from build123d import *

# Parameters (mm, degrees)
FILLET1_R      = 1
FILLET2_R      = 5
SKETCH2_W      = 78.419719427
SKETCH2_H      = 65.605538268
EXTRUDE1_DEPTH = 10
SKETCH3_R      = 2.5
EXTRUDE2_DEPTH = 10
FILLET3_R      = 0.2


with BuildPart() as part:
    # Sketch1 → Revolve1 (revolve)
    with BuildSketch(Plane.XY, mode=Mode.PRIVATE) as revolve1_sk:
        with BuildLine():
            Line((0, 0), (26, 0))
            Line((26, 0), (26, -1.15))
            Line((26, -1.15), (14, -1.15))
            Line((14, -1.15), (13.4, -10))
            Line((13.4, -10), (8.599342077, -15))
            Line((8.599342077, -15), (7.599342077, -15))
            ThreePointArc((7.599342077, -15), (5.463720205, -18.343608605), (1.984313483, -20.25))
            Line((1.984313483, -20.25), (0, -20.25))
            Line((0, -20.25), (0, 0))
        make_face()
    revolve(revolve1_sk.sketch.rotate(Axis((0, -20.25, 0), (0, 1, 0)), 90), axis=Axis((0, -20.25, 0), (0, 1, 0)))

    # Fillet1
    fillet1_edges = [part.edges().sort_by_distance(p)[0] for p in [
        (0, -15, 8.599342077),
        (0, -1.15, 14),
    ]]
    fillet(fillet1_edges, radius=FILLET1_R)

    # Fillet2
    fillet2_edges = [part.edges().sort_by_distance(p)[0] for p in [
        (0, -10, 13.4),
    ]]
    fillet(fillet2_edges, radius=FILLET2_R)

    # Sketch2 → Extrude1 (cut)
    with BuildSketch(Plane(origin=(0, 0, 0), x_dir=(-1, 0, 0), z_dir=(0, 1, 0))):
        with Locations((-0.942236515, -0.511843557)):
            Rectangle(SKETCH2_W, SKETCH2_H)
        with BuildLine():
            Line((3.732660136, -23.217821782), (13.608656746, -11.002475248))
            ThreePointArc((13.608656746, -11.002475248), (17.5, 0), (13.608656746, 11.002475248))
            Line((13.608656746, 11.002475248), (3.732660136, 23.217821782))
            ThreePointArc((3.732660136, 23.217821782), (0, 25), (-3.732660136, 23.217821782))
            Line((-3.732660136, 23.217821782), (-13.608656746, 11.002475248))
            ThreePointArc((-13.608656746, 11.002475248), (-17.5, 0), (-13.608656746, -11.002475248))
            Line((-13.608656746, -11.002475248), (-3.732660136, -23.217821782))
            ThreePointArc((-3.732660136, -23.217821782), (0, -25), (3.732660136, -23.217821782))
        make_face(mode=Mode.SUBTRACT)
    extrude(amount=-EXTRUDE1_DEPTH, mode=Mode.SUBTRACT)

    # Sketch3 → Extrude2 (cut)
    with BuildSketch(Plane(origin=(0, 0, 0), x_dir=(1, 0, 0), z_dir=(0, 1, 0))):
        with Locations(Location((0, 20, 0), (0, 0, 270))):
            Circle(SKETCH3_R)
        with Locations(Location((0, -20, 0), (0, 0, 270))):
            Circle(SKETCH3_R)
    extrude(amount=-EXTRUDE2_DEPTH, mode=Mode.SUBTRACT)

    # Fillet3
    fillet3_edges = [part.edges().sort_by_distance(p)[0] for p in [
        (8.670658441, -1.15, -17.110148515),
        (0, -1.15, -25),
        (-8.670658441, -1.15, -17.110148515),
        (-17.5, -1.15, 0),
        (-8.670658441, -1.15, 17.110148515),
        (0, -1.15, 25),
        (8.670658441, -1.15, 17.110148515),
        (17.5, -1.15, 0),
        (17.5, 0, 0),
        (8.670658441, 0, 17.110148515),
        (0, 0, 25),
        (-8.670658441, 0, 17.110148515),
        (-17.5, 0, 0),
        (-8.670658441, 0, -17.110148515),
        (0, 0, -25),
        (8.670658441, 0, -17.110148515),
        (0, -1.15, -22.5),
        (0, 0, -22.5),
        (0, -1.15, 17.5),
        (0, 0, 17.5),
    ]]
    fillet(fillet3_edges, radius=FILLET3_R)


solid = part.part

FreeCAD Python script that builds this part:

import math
import FreeCAD as App
import Part
import Sketcher
from FreeCAD import Vector


def edges_at(feature, points):
    """Names of the edges that pass closest to the given points."""
    edges = feature.Shape.Edges
    near = lambda p: min(range(len(edges)), key=lambda i: edges[i].distToShape(Part.Vertex(*p))[0])
    return sorted({f"Edge{near(p) + 1}" for p in points})

doc = App.newDocument("Part")
body = doc.addObject("PartDesign::Body", "Body")

# Sketch on XY plane
sketch1 = doc.addObject("Sketcher::SketchObject", "Sketch")
body.addObject(sketch1)
sketch1.AttachmentSupport = (doc.XY_Plane, [""])
sketch1.MapMode = "FlatFace"
sketch1.addGeometry([
    Part.LineSegment(Vector(26, 0, 0), Vector(0, 0, 0)),  # 0
    Part.LineSegment(Vector(0, 0, 0), Vector(0, -20.2, 0)),  # 1
    Part.LineSegment(Vector(0, -20.2, 0), Vector(2, -20.2, 0)),  # 2
    Part.ArcOfCircle(Part.Circle(Vector(0, -12.5, 0), Vector(0, 0, 1), 8), math.radians(-76), math.radians(-18)),  # 3
    Part.LineSegment(Vector(7.6, -15, 0), Vector(8.6, -15, 0)),  # 4
    Part.LineSegment(Vector(8.6, -15, 0), Vector(13.4, -10, 0)),  # 5
    Part.LineSegment(Vector(13.4, -10, 0), Vector(14, -1.1, 0)),  # 6
    Part.LineSegment(Vector(14, -1.1, 0), Vector(26, -1.1, 0)),  # 7
    Part.LineSegment(Vector(26, -1.1, 0), Vector(26, 0, 0)),  # 8
], False)
sketch1.addConstraint([
    Sketcher.Constraint("Coincident", 0, 2, 1, 1),
    Sketcher.Constraint("Coincident", 1, 2, 2, 1),
    Sketcher.Constraint("Coincident", 2, 2, 3, 1),
    Sketcher.Constraint("Coincident", 3, 2, 4, 1),
    Sketcher.Constraint("Coincident", 4, 2, 5, 1),
    Sketcher.Constraint("Coincident", 5, 2, 6, 1),
    Sketcher.Constraint("Coincident", 6, 2, 7, 1),
    Sketcher.Constraint("Coincident", 7, 2, 8, 1),
    Sketcher.Constraint("Coincident", 8, 2, 0, 1),
    Sketcher.Constraint("Horizontal", 0),
    Sketcher.Constraint("Vertical", 1),
    Sketcher.Constraint("Horizontal", 2),
    Sketcher.Constraint("Horizontal", 4),
    Sketcher.Constraint("Horizontal", 7),
    Sketcher.Constraint("Vertical", 8),
    Sketcher.Constraint("Coincident", 0, 2, -1, 1),
    Sketcher.Constraint("PointOnObject", 3, 3, -2),
    Sketcher.Constraint("Radius", 3, 8.0),
    Sketcher.Constraint("DistanceX", 0, 2, 0, 1, 26.0),
    Sketcher.Constraint("DistanceX", 4, 1, 4, 2, 1.0),
    Sketcher.Constraint("DistanceX", 7, 1, 7, 2, 12.0),
    Sketcher.Constraint("DistanceY", 3, 2, -1, 1, 15.0),
    Sketcher.Constraint("DistanceY", 5, 2, -1, 1, 10.0),
    Sketcher.Constraint("DistanceY", 1, 2, 1, 1, 20.25),
    Sketcher.Constraint("DistanceY", 8, 1, 8, 2, 1.15),
    Sketcher.Constraint("DistanceY", 3, 3, -1, 1, 12.5),
    Sketcher.Constraint("DistanceX", -1, 1, 5, 2, 13.4),
])
revolution = doc.addObject("PartDesign::Revolution", "Revolution")
body.addObject(revolution)
revolution.Profile = sketch1
revolution.ReferenceAxis = (sketch1, ["V_Axis"])
revolution.Angle = 360
doc.recompute()

fillet = doc.addObject("PartDesign::Fillet", "Fillet")
body.addObject(fillet)
fillet.Base = (revolution, edges_at(revolution, [(0, -15, 8.599), (0, -1.15, 14)]))
fillet.Radius = 1
doc.recompute()

fillet2 = doc.addObject("PartDesign::Fillet", "Fillet001")
body.addObject(fillet2)
fillet2.Base = (fillet, edges_at(fillet, [(0, -10, 13.4)]))
fillet2.Radius = 5

# Sketch on XZ plane
sketch2 = doc.addObject("Sketcher::SketchObject", "Sketch001")
body.addObject(sketch2)
sketch2.AttachmentSupport = (doc.XZ_Plane, [""])
sketch2.MapMode = "FlatFace"
sketch2.addGeometry([
    Part.LineSegment(Vector(40.2, 32.3, 0), Vector(40.2, -33.3, 0)),  # 0
    Part.LineSegment(Vector(40.2, -33.3, 0), Vector(-38.3, -33.3, 0)),  # 1
    Part.LineSegment(Vector(-38.3, -33.3, 0), Vector(-38.3, 32.3, 0)),  # 2
    Part.LineSegment(Vector(-38.3, 32.3, 0), Vector(40.2, 32.3, 0)),  # 3
    Part.LineSegment(Vector(-13.6, -11, 0), Vector(-3.7, -23.2, 0)),  # 4
    Part.ArcOfCircle(Part.Circle(Vector(0, -20.2, 0), Vector(0, 0, 1), 4.8), math.radians(-141), math.radians(-39)),  # 5
    Part.LineSegment(Vector(3.7, -23.2, 0), Vector(13.6, -11, 0)),  # 6
    Part.ArcOfCircle(Part.Circle(Vector(0, 0, 0), Vector(0, 0, 1), 17.5), math.radians(-39), math.radians(39)),  # 7
    Part.LineSegment(Vector(13.6, 11, 0), Vector(3.7, 23.2, 0)),  # 8
    Part.ArcOfCircle(Part.Circle(Vector(0, 20.2, 0), Vector(0, 0, 1), 4.8), math.radians(39), math.radians(141)),  # 9
    Part.LineSegment(Vector(-3.7, 23.2, 0), Vector(-13.6, 11, 0)),  # 10
    Part.ArcOfCircle(Part.Circle(Vector(0, 0, 0), Vector(0, 0, 1), 17.5), math.radians(141), math.radians(219)),  # 11
], False)
sketch2.addConstraint([
    Sketcher.Constraint("Coincident", 0, 2, 1, 1),
    Sketcher.Constraint("Coincident", 1, 2, 2, 1),
    Sketcher.Constraint("Coincident", 2, 2, 3, 1),
    Sketcher.Constraint("Coincident", 3, 2, 0, 1),
    Sketcher.Constraint("Tangent", 4, 2, 5, 1),
    Sketcher.Constraint("Tangent", 5, 2, 6, 1),
    Sketcher.Constraint("Tangent", 6, 2, 7, 1),
    Sketcher.Constraint("Tangent", 7, 2, 8, 1),
    Sketcher.Constraint("Tangent", 8, 2, 9, 1),
    Sketcher.Constraint("Tangent", 9, 2, 10, 1),
    Sketcher.Constraint("Tangent", 10, 2, 11, 1),
    Sketcher.Constraint("Tangent", 11, 2, 4, 1),
    Sketcher.Constraint("Vertical", 0),
    Sketcher.Constraint("Horizontal", 1),
    Sketcher.Constraint("Vertical", 2),
    Sketcher.Constraint("Horizontal", 3),
    Sketcher.Constraint("Coincident", 7, 3, -1, 1),
    Sketcher.Constraint("Coincident", 11, 3, -1, 1),
    Sketcher.Constraint("Equal", 5, 9),
    Sketcher.Constraint("Equal", 7, 11),
    Sketcher.Constraint("Symmetric", 5, 3, 9, 3, -1, 1),
    Sketcher.Constraint("PointOnObject", 5, 3, -2),
    Sketcher.Constraint("Radius", 5, 4.8),
    Sketcher.Constraint("Radius", 7, 17.5),
    Sketcher.Constraint("DistanceY", 5, 3, -1, 1, 20.2),
    Sketcher.Constraint("DistanceX", 1, 2, 1, 1, 78.419719),
    Sketcher.Constraint("DistanceY", 0, 2, 0, 1, 65.605538),
    Sketcher.Constraint("DistanceY", 1, 2, 4, 2, 10.096791),
    Sketcher.Constraint("DistanceX", 7, 2, 3, 2, 26.543439),
])
pocket1 = doc.addObject("PartDesign::Pocket", "Pocket")
body.addObject(pocket1)
pocket1.Profile = sketch2
pocket1.Length = 10
pocket1.Reversed = True

# Sketch on XZ plane
sketch3 = doc.addObject("Sketcher::SketchObject", "Sketch002")
body.addObject(sketch3)
sketch3.AttachmentSupport = (doc.XZ_Plane, [""])
sketch3.MapMode = "FlatFace"
sketch3.addGeometry([
    Part.Circle(Vector(0, -20, 0), Vector(0, 0, 1), 2.5),
    Part.Circle(Vector(0, 20, 0), Vector(0, 0, 1), 2.5),
], False)
sketch3.addConstraint([
    Sketcher.Constraint("Equal", 0, 1),
    Sketcher.Constraint("Symmetric", 0, 3, 1, 3, -1, 1),
    Sketcher.Constraint("PointOnObject", 0, 3, -2),
    Sketcher.Constraint("Diameter", 0, 5.0),
    Sketcher.Constraint("DistanceY", 0, 3, -1, 1, 20.0),
])
pocket2 = doc.addObject("PartDesign::Pocket", "Pocket001")
body.addObject(pocket2)
pocket2.Profile = sketch3
pocket2.Length = 10
pocket2.Reversed = True
doc.recompute()

fillet3 = doc.addObject("PartDesign::Fillet", "Fillet002")
body.addObject(fillet3)
fillet3.Base = (pocket2, edges_at(pocket2, [
    (8.671, -1.15, -17.11),
    (0, -1.15, -25),
    (-8.671, -1.15, -17.11),
    (-17.5, -1.15, 0),
    (-8.671, -1.15, 17.11),
    (0, -1.15, 25),
    (8.671, -1.15, 17.11),
    (17.5, -1.15, 0),
    (17.5, 0, 0),
    (8.671, 0, 17.11),
    (0, 0, 25),
    (-8.671, 0, 17.11),
    (-17.5, 0, 0),
    (-8.671, 0, -17.11),
    (0, 0, -25),
    (8.671, 0, -17.11),
    (0, -1.15, -22.5),
    (0, 0, -22.5),
    (0, -1.15, 17.5),
    (0, 0, 17.5),
]))
fillet3.Radius = 0.2

doc.recompute()
